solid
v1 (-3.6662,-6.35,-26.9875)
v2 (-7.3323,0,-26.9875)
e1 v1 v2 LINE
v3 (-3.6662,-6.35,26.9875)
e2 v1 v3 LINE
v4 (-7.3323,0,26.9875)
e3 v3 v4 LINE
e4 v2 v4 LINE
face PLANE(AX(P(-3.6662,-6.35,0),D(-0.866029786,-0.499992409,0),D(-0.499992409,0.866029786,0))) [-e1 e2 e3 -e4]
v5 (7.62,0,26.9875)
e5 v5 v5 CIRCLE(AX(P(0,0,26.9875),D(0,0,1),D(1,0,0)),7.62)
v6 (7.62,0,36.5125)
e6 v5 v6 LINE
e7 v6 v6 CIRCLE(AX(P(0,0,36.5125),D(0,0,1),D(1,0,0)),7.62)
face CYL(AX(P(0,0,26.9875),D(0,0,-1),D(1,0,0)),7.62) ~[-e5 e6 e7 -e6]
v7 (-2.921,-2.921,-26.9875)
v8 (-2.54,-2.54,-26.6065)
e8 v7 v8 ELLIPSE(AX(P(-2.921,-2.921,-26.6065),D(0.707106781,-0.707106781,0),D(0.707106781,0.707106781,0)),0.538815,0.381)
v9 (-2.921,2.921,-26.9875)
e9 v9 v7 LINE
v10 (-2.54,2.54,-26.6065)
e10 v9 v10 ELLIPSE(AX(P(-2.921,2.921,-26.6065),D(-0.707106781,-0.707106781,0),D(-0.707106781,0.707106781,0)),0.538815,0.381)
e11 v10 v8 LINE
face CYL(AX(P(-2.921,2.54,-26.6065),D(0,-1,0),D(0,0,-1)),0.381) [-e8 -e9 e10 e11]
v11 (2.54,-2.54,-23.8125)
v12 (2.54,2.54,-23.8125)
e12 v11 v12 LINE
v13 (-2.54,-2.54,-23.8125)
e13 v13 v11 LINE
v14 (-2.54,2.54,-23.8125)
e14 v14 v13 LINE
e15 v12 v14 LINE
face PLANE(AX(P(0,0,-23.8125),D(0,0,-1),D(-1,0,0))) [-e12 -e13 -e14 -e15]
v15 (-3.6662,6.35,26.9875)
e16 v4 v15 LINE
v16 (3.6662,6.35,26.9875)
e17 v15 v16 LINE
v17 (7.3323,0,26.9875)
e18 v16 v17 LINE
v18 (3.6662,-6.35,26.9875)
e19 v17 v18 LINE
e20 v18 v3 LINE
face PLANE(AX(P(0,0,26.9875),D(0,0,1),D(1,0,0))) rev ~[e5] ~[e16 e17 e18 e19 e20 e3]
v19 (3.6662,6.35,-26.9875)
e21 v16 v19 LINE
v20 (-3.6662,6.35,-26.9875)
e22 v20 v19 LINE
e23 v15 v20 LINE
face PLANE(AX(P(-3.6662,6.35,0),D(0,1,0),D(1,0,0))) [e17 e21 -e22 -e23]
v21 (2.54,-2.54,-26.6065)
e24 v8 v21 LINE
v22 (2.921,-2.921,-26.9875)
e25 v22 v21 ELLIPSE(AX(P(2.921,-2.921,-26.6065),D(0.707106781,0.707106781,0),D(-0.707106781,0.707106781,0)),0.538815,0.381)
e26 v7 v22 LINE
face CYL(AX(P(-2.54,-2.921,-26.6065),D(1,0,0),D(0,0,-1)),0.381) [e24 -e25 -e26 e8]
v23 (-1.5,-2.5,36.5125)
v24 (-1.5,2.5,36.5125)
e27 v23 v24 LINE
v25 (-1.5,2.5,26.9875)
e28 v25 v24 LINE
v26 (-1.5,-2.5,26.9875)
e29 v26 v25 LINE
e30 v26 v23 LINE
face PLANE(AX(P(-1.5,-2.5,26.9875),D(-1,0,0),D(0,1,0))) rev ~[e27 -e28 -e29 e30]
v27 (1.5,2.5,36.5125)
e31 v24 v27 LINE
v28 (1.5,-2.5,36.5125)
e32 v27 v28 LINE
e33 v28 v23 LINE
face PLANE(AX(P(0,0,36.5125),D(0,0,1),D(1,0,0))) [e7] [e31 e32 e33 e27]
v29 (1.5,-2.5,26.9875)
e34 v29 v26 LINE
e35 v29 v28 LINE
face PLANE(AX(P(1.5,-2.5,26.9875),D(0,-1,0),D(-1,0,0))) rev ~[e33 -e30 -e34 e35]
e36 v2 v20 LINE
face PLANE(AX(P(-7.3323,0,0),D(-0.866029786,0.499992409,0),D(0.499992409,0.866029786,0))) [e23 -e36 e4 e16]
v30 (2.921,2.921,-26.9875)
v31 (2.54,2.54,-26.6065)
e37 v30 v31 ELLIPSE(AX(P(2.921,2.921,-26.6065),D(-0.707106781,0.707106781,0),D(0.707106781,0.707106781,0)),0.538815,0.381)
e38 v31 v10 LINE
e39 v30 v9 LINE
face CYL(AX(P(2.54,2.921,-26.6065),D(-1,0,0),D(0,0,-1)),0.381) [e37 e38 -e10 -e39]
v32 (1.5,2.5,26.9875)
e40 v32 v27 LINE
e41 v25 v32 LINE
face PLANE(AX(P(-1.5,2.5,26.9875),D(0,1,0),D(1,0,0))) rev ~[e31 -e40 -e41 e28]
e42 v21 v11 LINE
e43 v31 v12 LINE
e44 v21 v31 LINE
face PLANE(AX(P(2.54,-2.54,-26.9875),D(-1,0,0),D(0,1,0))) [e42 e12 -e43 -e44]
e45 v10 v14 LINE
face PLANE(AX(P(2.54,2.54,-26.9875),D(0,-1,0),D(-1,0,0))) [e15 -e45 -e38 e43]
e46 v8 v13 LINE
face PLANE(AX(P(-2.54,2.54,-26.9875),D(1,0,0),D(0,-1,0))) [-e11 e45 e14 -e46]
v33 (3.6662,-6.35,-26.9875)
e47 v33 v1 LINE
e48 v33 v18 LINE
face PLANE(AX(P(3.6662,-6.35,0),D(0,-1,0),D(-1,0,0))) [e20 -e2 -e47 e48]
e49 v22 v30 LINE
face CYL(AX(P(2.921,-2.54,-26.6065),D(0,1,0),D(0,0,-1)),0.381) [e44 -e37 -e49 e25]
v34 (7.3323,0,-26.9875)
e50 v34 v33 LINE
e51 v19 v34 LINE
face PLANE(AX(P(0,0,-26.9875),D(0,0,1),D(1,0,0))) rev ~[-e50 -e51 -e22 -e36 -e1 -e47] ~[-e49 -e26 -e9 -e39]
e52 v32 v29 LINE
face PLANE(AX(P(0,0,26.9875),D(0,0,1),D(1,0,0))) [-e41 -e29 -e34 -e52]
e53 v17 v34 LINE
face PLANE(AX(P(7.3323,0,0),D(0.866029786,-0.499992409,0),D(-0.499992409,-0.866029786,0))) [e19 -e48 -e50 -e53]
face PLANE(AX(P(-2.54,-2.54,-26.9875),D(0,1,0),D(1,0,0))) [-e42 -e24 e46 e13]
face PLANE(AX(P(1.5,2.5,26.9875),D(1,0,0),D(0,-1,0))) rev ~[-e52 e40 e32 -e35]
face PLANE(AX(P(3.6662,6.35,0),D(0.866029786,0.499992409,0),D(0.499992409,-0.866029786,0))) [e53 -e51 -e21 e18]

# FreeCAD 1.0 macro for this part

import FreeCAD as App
import Part
import Sketcher

V = App.Vector
Q = App.Units.Quantity


def edges_at(feature, points):
    """Names of the edges that pass closest to the given points."""
    edges = feature.Shape.Edges
    near = lambda p: min(range(len(edges)), key=lambda i: edges[i].distToShape(Part.Vertex(*p))[0])
    return sorted({f"Edge{near(p) + 1}" for p in points})

doc = App.newDocument("Part")
body = doc.addObject("PartDesign::Body", "Body")

sketch1 = doc.addObject("Sketcher::SketchObject", "Sketch")
body.addObject(sketch1)
sketch1.AttachmentSupport = (doc.XY_Plane, [""])
sketch1.MapMode = "FlatFace"
sketch1.addGeometry([
    Part.LineSegment(V(-4, 6, 0), V(-7, 0, 0)),
    Part.LineSegment(V(-7, 0, 0), V(-4, -6, 0)),
    Part.LineSegment(V(-4, -6, 0), V(4, -6, 0)),
    Part.LineSegment(V(4, -6, 0), V(7, 0, 0)),
    Part.LineSegment(V(7, 0, 0), V(4, 6, 0)),
    Part.LineSegment(V(4, 6, 0), V(-4, 6, 0)),
], False)
sketch1.addConstraint([
    Sketcher.Constraint("Coincident", 0, 2, 1, 1),
    Sketcher.Constraint("Coincident", 1, 2, 2, 1),
    Sketcher.Constraint("Coincident", 2, 2, 3, 1),
    Sketcher.Constraint("Coincident", 3, 2, 4, 1),
    Sketcher.Constraint("Coincident", 4, 2, 5, 1),
    Sketcher.Constraint("Coincident", 5, 2, 0, 1),
    Sketcher.Constraint("Horizontal", 2),
    Sketcher.Constraint("Horizontal", 5),
    Sketcher.Constraint("Symmetric", 0, 2, 3, 2, -1, 1),
    Sketcher.Constraint("Symmetric", 1, 2, 4, 2, -1, 1),
    Sketcher.Constraint("PointOnObject", 0, 2, -1),
    Sketcher.Constraint("Parallel", 0, 3),
    Sketcher.Constraint("Vertical", 2, 2, 4, 2),
    Sketcher.Constraint("DistanceY", 2, 2, 4, 2, Q("0.5 in")),
    Sketcher.Constraint("Angle", 0, Q("-119.9995 deg")),
    Sketcher.Constraint("DistanceX", 0, 2, 2, 2, Q("0.433 in")),
])
pad1 = doc.addObject("PartDesign::Pad", "Pad")
body.addObject(pad1)
pad1.Profile = sketch1
pad1.Length = Q("2.125 in")
pad1.Midplane = True

sketch2 = doc.addObject("Sketcher::SketchObject", "Sketch001")
body.addObject(sketch2)
sketch2.AttachmentSupport = (doc.XY_Plane, [""])
sketch2.MapMode = "FlatFace"
sketch2.AttachmentOffset = App.Placement(V(0, 0, 1.0625 * 25.4), App.Rotation())
sketch2.addGeometry([
    Part.Circle(V(0, 0, 0), V(0, 0, 1), 7.6),
    Part.LineSegment(V(1.5, 2.5, 0), V(1.5, -2.5, 0)),
    Part.LineSegment(V(1.5, -2.5, 0), V(-1.5, -2.5, 0)),
    Part.LineSegment(V(-1.5, -2.5, 0), V(-1.5, 2.5, 0)),
    Part.LineSegment(V(-1.5, 2.5, 0), V(1.5, 2.5, 0)),
], False)
sketch2.addConstraint([
    Sketcher.Constraint("Coincident", 1, 2, 2, 1),
    Sketcher.Constraint("Coincident", 2, 2, 3, 1),
    Sketcher.Constraint("Coincident", 3, 2, 4, 1),
    Sketcher.Constraint("Coincident", 4, 2, 1, 1),
    Sketcher.Constraint("Vertical", 1),
    Sketcher.Constraint("Horizontal", 2),
    Sketcher.Constraint("Vertical", 3),
    Sketcher.Constraint("Horizontal", 4),
    Sketcher.Constraint("Coincident", 0, 3, -1, 1),
    Sketcher.Constraint("Symmetric", 1, 2, 3, 2, -1, 1),
    Sketcher.Constraint("Diameter", 0, Q("0.6 in")),
    Sketcher.Constraint("DistanceX", 2, 2, 2, 1, Q("0.1181 in")),
    Sketcher.Constraint("DistanceY", 1, 2, 1, 1, 5.0),
])
pad2 = doc.addObject("PartDesign::Pad", "Pad001")
body.addObject(pad2)
pad2.Profile = sketch2
pad2.Length = Q("0.375 in")

sketch3 = doc.addObject("Sketcher::SketchObject", "Sketch002")
body.addObject(sketch3)
sketch3.AttachmentSupport = (doc.XY_Plane, [""])
sketch3.MapMode = "FlatFace"
sketch3.AttachmentOffset = App.Placement(V(0, 0, -1.0625 * 25.4), App.Rotation())
sketch3.addGeometry([
    Part.LineSegment(V(3, -3, 0), V(-3, -3, 0)),
    Part.LineSegment(V(-3, -3, 0), V(-3, 3, 0)),
    Part.LineSegment(V(-3, 3, 0), V(3, 3, 0)),
    Part.LineSegment(V(3, 3, 0), V(3, -3, 0)),
], False)
sketch3.addConstraint([
    Sketcher.Constraint("Coincident", 0, 2, 1, 1),
    Sketcher.Constraint("Coincident", 1, 2, 2, 1),
    Sketcher.Constraint("Coincident", 2, 2, 3, 1),
    Sketcher.Constraint("Coincident", 3, 2, 0, 1),
    Sketcher.Constraint("Horizontal", 0),
    Sketcher.Constraint("Vertical", 1),
    Sketcher.Constraint("Horizontal", 2),
    Sketcher.Constraint("Vertical", 3),
    Sketcher.Constraint("Symmetric", 0, 2, 2, 2, -1, 1),
    Sketcher.Constraint("Equal", 2, 1),
    Sketcher.Constraint("DistanceX", 0, 2, 0, 1, Q("0.2 in")),
])
pocket1 = doc.addObject("PartDesign::Pocket", "Pocket")
body.addObject(pocket1)
pocket1.Profile = sketch3
pocket1.Length = Q("0.125 in")
pocket1.Reversed = True
doc.recompute()

fillet = doc.addObject("PartDesign::Fillet", "Fillet")
body.addObject(fillet)
fillet.Base = (pocket1, edges_at(pocket1, [
    (2.54, 0, -26.988),
    (0, 2.54, -26.988),
    (0, -2.54, -26.988),
    (-2.54, 0, -26.988),
]))
fillet.Radius = Q("0.015 in")

doc.recompute()
